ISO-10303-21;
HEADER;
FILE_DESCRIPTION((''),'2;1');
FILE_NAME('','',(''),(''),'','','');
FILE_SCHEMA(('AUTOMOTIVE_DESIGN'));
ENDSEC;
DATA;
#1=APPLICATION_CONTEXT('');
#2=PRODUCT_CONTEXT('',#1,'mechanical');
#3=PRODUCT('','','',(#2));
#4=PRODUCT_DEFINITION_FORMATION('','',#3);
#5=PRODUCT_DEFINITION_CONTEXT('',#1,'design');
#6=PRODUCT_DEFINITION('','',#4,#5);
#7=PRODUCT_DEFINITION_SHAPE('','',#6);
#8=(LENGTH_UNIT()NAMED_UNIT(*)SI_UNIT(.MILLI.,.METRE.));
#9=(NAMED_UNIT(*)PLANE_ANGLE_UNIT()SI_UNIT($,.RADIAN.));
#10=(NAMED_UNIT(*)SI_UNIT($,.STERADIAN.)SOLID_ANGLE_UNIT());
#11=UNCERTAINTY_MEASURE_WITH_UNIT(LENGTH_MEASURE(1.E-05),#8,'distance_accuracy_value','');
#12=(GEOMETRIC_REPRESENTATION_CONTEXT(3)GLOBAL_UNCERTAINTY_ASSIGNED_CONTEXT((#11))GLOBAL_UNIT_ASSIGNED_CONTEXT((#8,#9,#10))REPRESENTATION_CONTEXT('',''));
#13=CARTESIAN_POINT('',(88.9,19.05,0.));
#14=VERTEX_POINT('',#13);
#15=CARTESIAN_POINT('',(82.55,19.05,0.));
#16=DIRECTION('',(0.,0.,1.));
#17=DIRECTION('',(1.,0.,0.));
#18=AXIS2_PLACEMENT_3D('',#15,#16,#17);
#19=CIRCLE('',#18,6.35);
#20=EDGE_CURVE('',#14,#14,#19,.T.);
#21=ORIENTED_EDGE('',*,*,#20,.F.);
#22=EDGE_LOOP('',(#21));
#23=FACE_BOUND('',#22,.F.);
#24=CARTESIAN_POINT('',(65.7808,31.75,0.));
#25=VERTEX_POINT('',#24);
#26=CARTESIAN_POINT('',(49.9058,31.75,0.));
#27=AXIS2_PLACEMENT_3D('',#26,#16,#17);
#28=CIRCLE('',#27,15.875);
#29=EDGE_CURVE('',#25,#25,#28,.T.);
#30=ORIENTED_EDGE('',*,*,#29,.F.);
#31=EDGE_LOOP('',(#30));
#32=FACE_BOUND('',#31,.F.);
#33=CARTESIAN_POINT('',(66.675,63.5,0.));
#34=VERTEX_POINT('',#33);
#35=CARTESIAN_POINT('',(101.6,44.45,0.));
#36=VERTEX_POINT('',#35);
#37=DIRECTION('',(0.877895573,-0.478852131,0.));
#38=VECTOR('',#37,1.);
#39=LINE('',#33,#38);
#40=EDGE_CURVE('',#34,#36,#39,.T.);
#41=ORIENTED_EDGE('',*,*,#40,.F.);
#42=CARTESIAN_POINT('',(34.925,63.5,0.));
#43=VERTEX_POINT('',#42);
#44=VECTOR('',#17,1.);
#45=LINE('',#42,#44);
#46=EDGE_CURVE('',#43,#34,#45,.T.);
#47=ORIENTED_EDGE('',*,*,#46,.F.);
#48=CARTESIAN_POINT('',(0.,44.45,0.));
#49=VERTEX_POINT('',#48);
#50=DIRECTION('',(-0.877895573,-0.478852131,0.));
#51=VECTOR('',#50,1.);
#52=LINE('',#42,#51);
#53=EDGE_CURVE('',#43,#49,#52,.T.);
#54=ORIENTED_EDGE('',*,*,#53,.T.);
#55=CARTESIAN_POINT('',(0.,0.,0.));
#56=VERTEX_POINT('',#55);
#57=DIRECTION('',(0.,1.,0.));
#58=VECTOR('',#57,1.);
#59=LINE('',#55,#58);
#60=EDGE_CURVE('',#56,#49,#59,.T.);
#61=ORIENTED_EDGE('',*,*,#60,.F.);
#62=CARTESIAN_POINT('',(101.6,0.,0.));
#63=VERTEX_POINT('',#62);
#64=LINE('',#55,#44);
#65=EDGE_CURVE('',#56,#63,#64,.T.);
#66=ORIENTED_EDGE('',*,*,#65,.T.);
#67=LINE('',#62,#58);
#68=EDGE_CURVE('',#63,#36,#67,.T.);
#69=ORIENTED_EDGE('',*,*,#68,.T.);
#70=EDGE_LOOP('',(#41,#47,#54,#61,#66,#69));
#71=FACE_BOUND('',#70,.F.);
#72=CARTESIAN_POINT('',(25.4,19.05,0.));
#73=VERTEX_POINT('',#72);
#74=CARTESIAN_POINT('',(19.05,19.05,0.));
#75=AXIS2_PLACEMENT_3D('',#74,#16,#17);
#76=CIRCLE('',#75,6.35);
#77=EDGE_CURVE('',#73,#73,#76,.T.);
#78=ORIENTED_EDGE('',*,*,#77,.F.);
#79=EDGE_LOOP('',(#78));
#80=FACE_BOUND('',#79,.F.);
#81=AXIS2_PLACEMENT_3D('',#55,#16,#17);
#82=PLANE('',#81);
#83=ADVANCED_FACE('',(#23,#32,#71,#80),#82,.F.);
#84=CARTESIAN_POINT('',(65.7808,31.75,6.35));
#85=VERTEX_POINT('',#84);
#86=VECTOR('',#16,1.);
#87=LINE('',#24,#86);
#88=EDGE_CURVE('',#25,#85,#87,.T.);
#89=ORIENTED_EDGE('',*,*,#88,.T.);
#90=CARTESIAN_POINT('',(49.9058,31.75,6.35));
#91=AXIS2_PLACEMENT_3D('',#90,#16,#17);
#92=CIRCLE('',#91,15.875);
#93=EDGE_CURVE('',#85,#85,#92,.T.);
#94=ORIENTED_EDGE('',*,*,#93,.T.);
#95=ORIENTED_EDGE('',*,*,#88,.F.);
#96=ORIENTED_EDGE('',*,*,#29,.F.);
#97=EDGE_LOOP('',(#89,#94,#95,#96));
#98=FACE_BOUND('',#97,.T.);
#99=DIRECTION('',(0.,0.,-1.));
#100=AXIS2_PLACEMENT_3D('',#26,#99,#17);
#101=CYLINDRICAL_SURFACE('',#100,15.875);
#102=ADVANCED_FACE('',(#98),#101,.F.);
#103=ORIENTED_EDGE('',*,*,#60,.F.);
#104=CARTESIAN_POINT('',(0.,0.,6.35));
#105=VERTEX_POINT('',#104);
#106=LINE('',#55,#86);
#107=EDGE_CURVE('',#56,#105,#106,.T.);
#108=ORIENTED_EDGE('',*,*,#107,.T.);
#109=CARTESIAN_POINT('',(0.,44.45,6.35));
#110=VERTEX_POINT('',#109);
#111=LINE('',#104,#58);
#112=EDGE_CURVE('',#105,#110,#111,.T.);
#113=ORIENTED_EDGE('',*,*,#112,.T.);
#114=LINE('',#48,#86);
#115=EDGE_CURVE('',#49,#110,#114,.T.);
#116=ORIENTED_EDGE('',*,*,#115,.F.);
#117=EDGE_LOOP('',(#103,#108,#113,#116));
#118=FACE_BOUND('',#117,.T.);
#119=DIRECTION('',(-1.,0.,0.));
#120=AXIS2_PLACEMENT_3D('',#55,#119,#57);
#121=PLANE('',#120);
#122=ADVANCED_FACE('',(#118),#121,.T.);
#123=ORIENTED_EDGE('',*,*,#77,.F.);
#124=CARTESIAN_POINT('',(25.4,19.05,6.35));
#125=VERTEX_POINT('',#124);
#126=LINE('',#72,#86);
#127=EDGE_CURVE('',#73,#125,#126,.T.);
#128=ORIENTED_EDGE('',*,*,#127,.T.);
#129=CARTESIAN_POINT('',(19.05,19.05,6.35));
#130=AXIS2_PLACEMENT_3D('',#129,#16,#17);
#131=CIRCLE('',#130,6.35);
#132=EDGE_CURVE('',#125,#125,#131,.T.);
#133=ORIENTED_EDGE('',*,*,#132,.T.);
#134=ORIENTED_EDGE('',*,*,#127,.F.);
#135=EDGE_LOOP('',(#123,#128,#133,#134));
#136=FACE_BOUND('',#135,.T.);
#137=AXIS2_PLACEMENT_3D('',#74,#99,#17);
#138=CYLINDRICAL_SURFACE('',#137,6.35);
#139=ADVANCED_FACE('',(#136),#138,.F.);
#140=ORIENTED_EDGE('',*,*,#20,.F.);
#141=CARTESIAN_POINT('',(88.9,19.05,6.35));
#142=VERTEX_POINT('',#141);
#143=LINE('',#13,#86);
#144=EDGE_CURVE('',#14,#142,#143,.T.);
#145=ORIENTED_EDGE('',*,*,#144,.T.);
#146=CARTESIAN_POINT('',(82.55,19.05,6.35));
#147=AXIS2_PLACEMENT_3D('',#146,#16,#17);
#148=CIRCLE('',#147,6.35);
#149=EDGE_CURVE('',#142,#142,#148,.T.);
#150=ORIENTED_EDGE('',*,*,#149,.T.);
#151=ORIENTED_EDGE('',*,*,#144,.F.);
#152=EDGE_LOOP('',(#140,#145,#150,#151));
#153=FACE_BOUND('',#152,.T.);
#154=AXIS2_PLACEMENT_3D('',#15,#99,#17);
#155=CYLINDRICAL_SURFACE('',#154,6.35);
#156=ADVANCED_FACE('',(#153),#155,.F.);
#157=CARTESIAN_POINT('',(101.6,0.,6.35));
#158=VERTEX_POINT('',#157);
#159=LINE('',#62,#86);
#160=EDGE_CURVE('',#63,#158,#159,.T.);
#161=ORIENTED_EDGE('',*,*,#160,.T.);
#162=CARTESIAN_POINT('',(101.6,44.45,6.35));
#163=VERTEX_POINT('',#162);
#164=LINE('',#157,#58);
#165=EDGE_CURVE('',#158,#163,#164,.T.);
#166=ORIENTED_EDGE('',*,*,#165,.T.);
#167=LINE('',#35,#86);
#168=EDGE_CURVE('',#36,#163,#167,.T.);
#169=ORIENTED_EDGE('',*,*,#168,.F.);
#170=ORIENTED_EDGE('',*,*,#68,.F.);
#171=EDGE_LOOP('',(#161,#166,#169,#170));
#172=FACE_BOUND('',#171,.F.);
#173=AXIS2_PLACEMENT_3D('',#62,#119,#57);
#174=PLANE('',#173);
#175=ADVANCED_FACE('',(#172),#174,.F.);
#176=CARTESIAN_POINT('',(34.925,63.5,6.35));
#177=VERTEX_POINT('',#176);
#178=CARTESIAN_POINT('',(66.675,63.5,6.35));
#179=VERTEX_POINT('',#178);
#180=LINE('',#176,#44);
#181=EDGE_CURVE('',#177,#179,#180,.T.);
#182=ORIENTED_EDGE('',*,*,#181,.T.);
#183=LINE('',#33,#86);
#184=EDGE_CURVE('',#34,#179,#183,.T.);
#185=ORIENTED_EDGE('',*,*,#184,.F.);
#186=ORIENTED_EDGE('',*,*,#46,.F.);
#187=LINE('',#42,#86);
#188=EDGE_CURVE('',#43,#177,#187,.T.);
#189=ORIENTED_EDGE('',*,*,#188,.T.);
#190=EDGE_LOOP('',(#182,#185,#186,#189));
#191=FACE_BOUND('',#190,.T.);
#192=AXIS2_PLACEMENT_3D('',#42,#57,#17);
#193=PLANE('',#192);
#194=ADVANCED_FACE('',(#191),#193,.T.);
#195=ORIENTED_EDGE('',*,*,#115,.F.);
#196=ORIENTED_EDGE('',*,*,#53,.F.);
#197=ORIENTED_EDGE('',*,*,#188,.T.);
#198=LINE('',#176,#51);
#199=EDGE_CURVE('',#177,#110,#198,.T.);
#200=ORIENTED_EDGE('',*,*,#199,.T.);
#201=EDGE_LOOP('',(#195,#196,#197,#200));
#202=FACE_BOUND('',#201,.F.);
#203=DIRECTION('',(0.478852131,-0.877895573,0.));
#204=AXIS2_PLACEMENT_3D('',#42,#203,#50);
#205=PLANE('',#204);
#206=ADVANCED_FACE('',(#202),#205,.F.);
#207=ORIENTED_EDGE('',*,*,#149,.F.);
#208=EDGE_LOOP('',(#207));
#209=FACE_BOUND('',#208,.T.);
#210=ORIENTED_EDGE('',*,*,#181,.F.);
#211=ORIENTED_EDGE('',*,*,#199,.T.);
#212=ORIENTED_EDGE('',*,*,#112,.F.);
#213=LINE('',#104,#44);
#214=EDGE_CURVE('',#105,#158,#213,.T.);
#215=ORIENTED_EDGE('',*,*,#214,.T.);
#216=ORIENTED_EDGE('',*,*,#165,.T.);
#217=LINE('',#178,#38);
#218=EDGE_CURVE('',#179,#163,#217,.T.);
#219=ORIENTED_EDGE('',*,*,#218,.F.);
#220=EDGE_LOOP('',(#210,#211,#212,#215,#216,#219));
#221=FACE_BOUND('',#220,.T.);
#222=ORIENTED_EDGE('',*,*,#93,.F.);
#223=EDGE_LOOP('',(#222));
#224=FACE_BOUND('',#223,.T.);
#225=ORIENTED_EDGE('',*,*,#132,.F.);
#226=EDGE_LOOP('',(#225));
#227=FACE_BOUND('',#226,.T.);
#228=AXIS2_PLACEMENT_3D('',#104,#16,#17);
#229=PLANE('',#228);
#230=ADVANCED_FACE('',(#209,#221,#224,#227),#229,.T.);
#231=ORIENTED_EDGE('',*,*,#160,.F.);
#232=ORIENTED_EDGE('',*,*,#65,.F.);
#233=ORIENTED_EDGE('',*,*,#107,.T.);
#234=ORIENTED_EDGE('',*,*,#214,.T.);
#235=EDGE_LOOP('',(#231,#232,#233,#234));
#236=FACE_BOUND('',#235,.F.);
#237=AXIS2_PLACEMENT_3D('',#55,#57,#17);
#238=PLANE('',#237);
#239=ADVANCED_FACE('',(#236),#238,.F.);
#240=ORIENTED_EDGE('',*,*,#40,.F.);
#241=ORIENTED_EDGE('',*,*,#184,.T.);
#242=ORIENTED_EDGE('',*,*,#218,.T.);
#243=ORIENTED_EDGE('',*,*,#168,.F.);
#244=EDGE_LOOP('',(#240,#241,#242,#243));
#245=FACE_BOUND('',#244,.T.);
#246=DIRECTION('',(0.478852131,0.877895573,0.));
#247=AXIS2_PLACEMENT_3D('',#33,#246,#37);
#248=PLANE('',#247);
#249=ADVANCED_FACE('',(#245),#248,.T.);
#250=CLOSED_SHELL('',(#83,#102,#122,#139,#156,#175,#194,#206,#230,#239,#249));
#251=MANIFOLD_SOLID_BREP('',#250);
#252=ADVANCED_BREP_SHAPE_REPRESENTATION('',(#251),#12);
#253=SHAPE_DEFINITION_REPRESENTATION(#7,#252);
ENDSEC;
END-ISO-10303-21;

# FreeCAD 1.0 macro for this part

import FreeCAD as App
import Part
import Sketcher

V = App.Vector
Q = App.Units.Quantity

doc = App.newDocument("Part")
body = doc.addObject("PartDesign::Body", "Body")

# Sketch on XY plane
sketch1 = body.newObject("Sketcher::SketchObject", "Sketch")
sketch1.AttachmentSupport = (doc.getObject("XY_Plane"), [""])
sketch1.MapMode = "FlatFace"
sketch1.addGeometry(Part.LineSegment(V(0, 44, 0), V(0, 0, 0)), False)
sketch1.addGeometry(Part.LineSegment(V(0, 0, 0), V(102, 0, 0)), False)
sketch1.addGeometry(Part.LineSegment(V(102, 0, 0), V(102, 44, 0)), False)
sketch1.addGeometry(Part.LineSegment(V(102, 44, 0), V(67, 64, 0)), False)
sketch1.addGeometry(Part.LineSegment(V(67, 64, 0), V(35, 64, 0)), False)
sketch1.addGeometry(Part.LineSegment(V(35, 64, 0), V(0, 44, 0)), False)
sketch1.addGeometry(Part.Circle(V(19, 19, 0), V(0, 0, 1), 6), False)
sketch1.addGeometry(Part.Circle(V(83, 19, 0), V(0, 0, 1), 6), False)
sketch1.addGeometry(Part.Circle(V(50, 32, 0), V(0, 0, 1), 16), False)
sketch1.addConstraint(Sketcher.Constraint("Coincident", 0, 2, 1, 1))
sketch1.addConstraint(Sketcher.Constraint("Coincident", 1, 2, 2, 1))
sketch1.addConstraint(Sketcher.Constraint("Coincident", 2, 2, 3, 1))
sketch1.addConstraint(Sketcher.Constraint("Coincident", 3, 2, 4, 1))
sketch1.addConstraint(Sketcher.Constraint("Coincident", 4, 2, 5, 1))
sketch1.addConstraint(Sketcher.Constraint("Coincident", 5, 2, 0, 1))
sketch1.addConstraint(Sketcher.Constraint("Vertical", 0))
sketch1.addConstraint(Sketcher.Constraint("Horizontal", 1))
sketch1.addConstraint(Sketcher.Constraint("Vertical", 2))
sketch1.addConstraint(Sketcher.Constraint("Horizontal", 4))
sketch1.addConstraint(Sketcher.Constraint("Coincident", 0, 2, -1, 1))
sketch1.addConstraint(Sketcher.Constraint("Equal", 6, 7))
sketch1.addConstraint(Sketcher.Constraint("Horizontal", 6, 3, 7, 3))
sketch1.addConstraint(Sketcher.Constraint("Horizontal", 2, 2, 5, 2))
sketch1.addConstraint(Sketcher.Constraint("Equal", 3, 5))
sketch1.addConstraint(Sketcher.Constraint("Diameter", 6, Q("0.5 in")))
sketch1.addConstraint(Sketcher.Constraint("Diameter", 8, Q("1.25 in")))
sketch1.addConstraint(Sketcher.Constraint("DistanceX", 4, 2, 4, 1, Q("1.25 in")))
sketch1.addConstraint(Sketcher.Constraint("DistanceY", 0, 2, 0, 1, Q("1.75 in")))
sketch1.addConstraint(Sketcher.Constraint("DistanceY", -1, 1, 3, 2, Q("2.5 in")))
sketch1.addConstraint(Sketcher.Constraint("DistanceX", 6, 3, 7, 3, Q("2.5 in")))
sketch1.addConstraint(Sketcher.Constraint("DistanceY", 6, 3, 8, 3, Q("0.5 in")))
sketch1.addConstraint(Sketcher.Constraint("DistanceY", 8, 3, 2, 2, Q("0.5 in")))
sketch1.addConstraint(Sketcher.Constraint("DistanceX", 1, 1, 1, 2, Q("4 in")))
sketch1.addConstraint(Sketcher.Constraint("DistanceX", -1, 1, 6, 3, Q("0.75 in")))
sketch1.addConstraint(Sketcher.Constraint("DistanceX", -1, 1, 8, 3, Q("1.9648 in")))
pad1 = body.newObject("PartDesign::Pad", "Pad")
pad1.Profile = sketch1
pad1.Length = Q("0.25 in")

doc.recompute()
